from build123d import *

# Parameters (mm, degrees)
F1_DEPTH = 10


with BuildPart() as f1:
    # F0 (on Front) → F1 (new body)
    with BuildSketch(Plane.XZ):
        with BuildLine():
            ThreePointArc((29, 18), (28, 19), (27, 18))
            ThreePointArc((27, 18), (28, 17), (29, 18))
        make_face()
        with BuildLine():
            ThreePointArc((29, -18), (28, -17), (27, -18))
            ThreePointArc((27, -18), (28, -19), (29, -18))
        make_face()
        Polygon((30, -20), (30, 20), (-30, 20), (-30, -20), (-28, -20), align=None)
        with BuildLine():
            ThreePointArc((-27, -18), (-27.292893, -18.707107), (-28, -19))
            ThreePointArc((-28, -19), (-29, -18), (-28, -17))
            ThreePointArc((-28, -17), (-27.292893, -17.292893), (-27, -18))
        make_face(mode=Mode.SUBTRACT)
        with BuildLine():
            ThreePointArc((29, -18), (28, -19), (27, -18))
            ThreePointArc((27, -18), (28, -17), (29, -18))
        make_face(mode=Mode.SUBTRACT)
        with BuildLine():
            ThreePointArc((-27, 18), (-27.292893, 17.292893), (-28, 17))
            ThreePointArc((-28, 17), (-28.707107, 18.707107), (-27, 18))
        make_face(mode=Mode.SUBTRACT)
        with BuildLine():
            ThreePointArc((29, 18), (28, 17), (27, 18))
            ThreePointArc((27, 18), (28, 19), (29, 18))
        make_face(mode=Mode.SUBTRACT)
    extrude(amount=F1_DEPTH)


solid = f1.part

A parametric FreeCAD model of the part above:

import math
import FreeCAD as App
import Part
import Sketcher

V = App.Vector


def add_polygon(sketch, points):
    """Adds a closed chain of lines whose ends are joined by coincident constraints."""
    first, n = sketch.GeometryCount, len(points)
    for a, b in zip(points, points[1:] + points[:1]):
        sketch.addGeometry(Part.LineSegment(App.Vector(*a, 0), App.Vector(*b, 0)), False)
    for i in range(n):
        sketch.addConstraint(Sketcher.Constraint("Coincident", first + i, 2, first + (i + 1) % n, 1))

doc = App.newDocument("Part")
body = doc.addObject("PartDesign::Body", "Body")

sketch1 = doc.addObject("Sketcher::SketchObject", "Sketch")
body.addObject(sketch1)
sketch1.AttachmentSupport = (doc.XZ_Plane, [""])
sketch1.MapMode = "FlatFace"
add_polygon(sketch1, [(30, -20), (30, 20), (-30, 20), (-30, -20)])
sketch1.addGeometry(Part.ArcOfCircle(Part.Circle(V(-27.999999, -17.999999, 0), V(0, 0, 1), 0.999999), math.radians(-0.000043), math.radians(90.000043)), False)
sketch1.addGeometry(Part.ArcOfCircle(Part.Circle(V(-27.999999, -18.000001, 0), V(0, 0, 1), 0.999999), math.radians(-90.000043), math.radians(0.000043)), False)
sketch1.addGeometry(Part.ArcOfCircle(Part.Circle(V(-28, -18, 0), V(0, 0, 1), 1), math.radians(90), math.radians(270)), False)
sketch1.addGeometry(Part.Circle(V(28, -18, 0), V(0, 0, 1), 1), False)
sketch1.addGeometry(Part.ArcOfCircle(Part.Circle(V(-28, 18, 0), V(0, 0, 1), 1), math.radians(-0.000007), math.radians(270.000007)), False)
sketch1.addGeometry(Part.ArcOfCircle(Part.Circle(V(-27.999999, 17.999999, 0), V(0, 0, 1), 0.999999), math.radians(-90.000043), math.radians(0.000043)), False)
sketch1.addGeometry(Part.Circle(V(28, 18, 0), V(0, 0, 1), 1), False)
sketch1.addConstraint(Sketcher.Constraint("Tangent", 4, 1, 5, 2))
sketch1.addConstraint(Sketcher.Constraint("Tangent", 5, 1, 6, 2))
sketch1.addConstraint(Sketcher.Constraint("Tangent", 6, 1, 4, 2))
sketch1.addConstraint(Sketcher.Constraint("Tangent", 8, 1, 9, 2))
sketch1.addConstraint(Sketcher.Constraint("Coincident", 9, 1, 8, 2))
sketch1.addConstraint(Sketcher.Constraint("Vertical", 0))
sketch1.addConstraint(Sketcher.Constraint("Horizontal", 1))
sketch1.addConstraint(Sketcher.Constraint("Vertical", 2))
sketch1.addConstraint(Sketcher.Constraint("Horizontal", 3))
sketch1.addConstraint(Sketcher.Constraint("Equal", 6, 7))
sketch1.addConstraint(Sketcher.Constraint("Equal", 7, 8))
sketch1.addConstraint(Sketcher.Constraint("Equal", 9, 10))
sketch1.addConstraint(Sketcher.Constraint("Symmetric", 7, 3, 8, 3, -1, 1))
sketch1.addConstraint(Sketcher.Constraint("Symmetric", 4, 3, 10, 3, -1, 1))
sketch1.addConstraint(Sketcher.Constraint("Symmetric", 0, 2, 2, 2, -1, 1))
sketch1.addConstraint(Sketcher.Constraint("Symmetric", 4, 3, 7, 3, -2))
sketch1.addConstraint(Sketcher.Constraint("Horizontal", 7, 3, 4, 1))
sketch1.addConstraint(Sketcher.Constraint("Horizontal", 10, 3, 8, 1))
sketch1.addConstraint(Sketcher.Constraint("Vertical", 9, 3, 5, 1))
sketch1.addConstraint(Sketcher.Constraint("Vertical", 5, 1, 6, 1))
sketch1.addConstraint(Sketcher.Constraint("Vertical", 6, 1, 9, 1))
sketch1.addConstraint(Sketcher.Constraint("Diameter", 7, 2.0))
sketch1.addConstraint(Sketcher.Constraint("DistanceX", 1, 2, 1, 1, 60.0))
sketch1.addConstraint(Sketcher.Constraint("DistanceY", 0, 1, 0, 2, 40.0))
sketch1.addConstraint(Sketcher.Constraint("DistanceX", 4, 3, -1, 1, 27.999999))
sketch1.addConstraint(Sketcher.Constraint("DistanceY", 4, 3, -1, 1, 17.999999))
pad1 = doc.addObject("PartDesign::Pad", "Pad")
body.addObject(pad1)
pad1.Profile = sketch1
pad1.Length = 10

doc.recompute()
